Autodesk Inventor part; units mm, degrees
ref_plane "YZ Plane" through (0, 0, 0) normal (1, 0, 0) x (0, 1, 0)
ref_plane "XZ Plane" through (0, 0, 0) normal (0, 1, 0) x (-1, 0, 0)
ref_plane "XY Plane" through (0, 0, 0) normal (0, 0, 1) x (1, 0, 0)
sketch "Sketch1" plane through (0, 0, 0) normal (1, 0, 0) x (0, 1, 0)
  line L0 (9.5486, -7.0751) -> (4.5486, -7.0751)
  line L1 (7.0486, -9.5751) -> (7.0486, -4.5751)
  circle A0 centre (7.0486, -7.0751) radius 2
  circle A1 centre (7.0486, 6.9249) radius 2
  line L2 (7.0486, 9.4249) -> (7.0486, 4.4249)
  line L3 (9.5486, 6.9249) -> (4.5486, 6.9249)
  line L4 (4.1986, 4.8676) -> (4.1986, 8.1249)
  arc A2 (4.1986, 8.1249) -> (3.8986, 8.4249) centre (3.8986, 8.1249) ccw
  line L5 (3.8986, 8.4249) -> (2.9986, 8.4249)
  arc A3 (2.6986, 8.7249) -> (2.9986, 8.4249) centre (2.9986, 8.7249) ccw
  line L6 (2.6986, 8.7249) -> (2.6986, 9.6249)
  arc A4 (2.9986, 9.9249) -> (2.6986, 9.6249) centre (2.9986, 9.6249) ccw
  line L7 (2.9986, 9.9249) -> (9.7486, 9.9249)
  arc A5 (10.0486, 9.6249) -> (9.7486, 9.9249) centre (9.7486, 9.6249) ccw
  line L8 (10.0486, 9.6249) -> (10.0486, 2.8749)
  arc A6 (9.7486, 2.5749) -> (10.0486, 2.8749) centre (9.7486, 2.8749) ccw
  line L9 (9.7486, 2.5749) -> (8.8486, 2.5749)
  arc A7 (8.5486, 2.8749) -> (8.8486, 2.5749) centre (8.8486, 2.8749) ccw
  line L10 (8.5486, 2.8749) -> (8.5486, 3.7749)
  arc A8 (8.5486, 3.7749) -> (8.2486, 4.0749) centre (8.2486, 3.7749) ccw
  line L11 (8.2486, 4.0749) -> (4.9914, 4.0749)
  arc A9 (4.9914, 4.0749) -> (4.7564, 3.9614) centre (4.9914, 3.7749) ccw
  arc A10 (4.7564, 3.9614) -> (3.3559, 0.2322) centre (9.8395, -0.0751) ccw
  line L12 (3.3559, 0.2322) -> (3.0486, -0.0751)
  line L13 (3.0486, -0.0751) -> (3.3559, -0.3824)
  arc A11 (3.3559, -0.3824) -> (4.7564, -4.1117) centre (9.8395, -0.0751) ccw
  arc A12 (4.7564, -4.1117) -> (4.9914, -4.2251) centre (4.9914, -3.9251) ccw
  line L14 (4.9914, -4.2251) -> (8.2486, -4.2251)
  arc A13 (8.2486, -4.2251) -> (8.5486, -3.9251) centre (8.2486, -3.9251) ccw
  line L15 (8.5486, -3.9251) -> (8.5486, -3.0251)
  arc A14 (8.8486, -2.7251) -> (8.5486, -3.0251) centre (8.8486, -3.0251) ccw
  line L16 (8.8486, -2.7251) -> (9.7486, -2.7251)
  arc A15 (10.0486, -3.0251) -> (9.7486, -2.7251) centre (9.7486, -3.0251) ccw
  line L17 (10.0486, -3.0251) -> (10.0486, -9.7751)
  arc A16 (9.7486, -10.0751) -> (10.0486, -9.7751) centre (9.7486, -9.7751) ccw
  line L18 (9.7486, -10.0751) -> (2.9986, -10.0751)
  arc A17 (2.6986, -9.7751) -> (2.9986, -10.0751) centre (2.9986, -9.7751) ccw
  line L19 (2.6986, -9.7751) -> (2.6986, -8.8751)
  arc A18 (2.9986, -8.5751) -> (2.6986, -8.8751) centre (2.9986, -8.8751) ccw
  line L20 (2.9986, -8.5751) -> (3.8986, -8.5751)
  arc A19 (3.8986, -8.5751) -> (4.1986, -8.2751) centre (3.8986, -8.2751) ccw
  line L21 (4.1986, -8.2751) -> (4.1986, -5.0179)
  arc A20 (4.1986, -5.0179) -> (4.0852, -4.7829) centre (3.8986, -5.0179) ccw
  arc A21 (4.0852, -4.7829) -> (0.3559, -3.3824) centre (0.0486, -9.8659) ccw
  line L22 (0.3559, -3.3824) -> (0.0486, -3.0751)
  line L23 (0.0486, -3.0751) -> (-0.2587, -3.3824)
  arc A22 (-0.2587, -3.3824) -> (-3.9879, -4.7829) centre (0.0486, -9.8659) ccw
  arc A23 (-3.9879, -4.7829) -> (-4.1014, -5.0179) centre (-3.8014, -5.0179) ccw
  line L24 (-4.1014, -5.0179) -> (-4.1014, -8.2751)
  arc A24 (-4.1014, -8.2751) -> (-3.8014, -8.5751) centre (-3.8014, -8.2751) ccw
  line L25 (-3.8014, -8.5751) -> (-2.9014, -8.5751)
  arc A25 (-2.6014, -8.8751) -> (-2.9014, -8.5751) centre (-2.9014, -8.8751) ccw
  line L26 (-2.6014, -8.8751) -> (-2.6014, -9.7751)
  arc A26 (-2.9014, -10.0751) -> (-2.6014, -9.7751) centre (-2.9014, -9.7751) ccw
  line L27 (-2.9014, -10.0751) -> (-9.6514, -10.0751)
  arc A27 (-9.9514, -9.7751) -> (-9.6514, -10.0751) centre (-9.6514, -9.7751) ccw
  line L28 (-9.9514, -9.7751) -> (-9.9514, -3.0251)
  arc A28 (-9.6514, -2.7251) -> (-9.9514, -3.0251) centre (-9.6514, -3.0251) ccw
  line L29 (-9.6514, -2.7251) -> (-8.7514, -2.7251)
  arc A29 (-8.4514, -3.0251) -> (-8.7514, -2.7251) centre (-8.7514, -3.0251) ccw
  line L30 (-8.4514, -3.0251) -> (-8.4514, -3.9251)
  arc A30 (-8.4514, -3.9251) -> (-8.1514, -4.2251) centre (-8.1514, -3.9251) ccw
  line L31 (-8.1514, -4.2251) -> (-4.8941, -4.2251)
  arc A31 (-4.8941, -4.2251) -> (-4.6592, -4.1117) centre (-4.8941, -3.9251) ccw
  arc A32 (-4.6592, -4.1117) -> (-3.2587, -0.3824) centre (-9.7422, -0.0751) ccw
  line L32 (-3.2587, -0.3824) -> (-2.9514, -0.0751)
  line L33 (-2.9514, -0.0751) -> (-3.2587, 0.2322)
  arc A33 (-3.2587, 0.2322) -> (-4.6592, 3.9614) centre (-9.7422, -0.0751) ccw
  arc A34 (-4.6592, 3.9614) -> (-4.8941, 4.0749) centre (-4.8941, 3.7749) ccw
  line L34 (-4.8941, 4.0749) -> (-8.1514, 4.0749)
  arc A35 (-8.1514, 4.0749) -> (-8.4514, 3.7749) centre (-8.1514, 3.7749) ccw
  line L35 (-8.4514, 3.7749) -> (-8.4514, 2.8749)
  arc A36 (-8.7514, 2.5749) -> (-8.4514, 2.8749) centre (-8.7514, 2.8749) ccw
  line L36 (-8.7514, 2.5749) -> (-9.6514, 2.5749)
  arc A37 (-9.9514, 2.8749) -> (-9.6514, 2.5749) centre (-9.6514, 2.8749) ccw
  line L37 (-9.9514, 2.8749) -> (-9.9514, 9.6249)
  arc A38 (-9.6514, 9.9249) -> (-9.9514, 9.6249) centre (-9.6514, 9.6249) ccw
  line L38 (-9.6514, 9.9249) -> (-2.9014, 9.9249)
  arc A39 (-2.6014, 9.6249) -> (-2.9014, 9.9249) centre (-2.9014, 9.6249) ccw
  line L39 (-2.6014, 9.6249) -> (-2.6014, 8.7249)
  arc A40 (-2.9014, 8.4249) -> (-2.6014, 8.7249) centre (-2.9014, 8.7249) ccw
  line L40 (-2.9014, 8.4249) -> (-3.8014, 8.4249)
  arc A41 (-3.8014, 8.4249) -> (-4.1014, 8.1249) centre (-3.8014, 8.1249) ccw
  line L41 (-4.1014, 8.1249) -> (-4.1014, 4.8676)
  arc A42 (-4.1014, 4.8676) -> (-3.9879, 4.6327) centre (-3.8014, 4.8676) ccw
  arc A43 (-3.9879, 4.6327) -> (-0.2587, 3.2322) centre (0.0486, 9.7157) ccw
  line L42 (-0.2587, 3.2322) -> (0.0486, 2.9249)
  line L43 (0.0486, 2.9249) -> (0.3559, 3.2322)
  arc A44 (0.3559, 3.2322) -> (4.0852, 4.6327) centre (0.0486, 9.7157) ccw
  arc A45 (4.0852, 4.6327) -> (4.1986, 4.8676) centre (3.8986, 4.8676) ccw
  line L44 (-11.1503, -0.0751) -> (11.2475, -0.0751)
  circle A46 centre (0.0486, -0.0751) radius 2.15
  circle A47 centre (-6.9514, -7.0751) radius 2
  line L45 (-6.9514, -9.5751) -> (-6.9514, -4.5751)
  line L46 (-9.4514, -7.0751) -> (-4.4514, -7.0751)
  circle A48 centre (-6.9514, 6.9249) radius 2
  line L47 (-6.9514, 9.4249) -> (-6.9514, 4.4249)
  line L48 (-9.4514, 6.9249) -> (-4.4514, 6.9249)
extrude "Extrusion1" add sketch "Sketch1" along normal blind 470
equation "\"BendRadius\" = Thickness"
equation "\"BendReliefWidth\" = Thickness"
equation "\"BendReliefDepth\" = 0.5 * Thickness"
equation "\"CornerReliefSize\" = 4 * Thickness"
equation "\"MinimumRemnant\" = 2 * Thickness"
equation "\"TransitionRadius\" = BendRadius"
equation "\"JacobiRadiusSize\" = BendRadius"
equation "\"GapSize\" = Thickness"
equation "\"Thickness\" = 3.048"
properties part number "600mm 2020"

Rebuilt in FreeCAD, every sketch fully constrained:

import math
import FreeCAD as App
import Part
import Sketcher

doc = App.newDocument("Part")
body = doc.addObject("PartDesign::Body", "Body")

# Sketch on YZ plane
sketch1 = doc.addObject("Sketcher::SketchObject", "Sketch")
body.addObject(sketch1)
sketch1.AttachmentSupport = (doc.YZ_Plane, [""])
sketch1.MapMode = "FlatFace"
sketch1.addGeometry(Part.LineSegment(App.Vector(4.2, 8.12, 0), App.Vector(4.2, 4.87, 0)), False)
sketch1.addGeometry(Part.ArcOfCircle(Part.Circle(App.Vector(3.9, 4.87, 0), App.Vector(0, 0, 1), 0.3), math.radians(-52), math.radians(0)), False)
sketch1.addGeometry(Part.ArcOfCircle(Part.Circle(App.Vector(0.05, 9.72, 0), App.Vector(0, 0, 1), 6.49), math.radians(-87), math.radians(-52)), False)
sketch1.addGeometry(Part.LineSegment(App.Vector(0.36, 3.23, 0), App.Vector(0.05, 2.92, 0)), False)
sketch1.addGeometry(Part.LineSegment(App.Vector(0.05, 2.92, 0), App.Vector(-0.26, 3.23, 0)), False)
sketch1.addGeometry(Part.ArcOfCircle(Part.Circle(App.Vector(0.05, 9.72, 0), App.Vector(0, 0, 1), 6.49), math.radians(-128), math.radians(-93)), False)
sketch1.addGeometry(Part.ArcOfCircle(Part.Circle(App.Vector(-3.8, 4.87, 0), App.Vector(0, 0, 1), 0.3), math.radians(180), math.radians(232)), False)
sketch1.addGeometry(Part.LineSegment(App.Vector(-4.1, 4.87, 0), App.Vector(-4.1, 8.12, 0)), False)
sketch1.addGeometry(Part.ArcOfCircle(Part.Circle(App.Vector(-3.8, 8.12, 0), App.Vector(0, 0, 1), 0.3), math.radians(90), math.radians(180)), False)
sketch1.addGeometry(Part.LineSegment(App.Vector(-3.8, 8.42, 0), App.Vector(-2.9, 8.42, 0)), False)
sketch1.addGeometry(Part.ArcOfCircle(Part.Circle(App.Vector(-2.9, 8.72, 0), App.Vector(0, 0, 1), 0.3), math.radians(-90), math.radians(0)), False)
sketch1.addGeometry(Part.LineSegment(App.Vector(-2.6, 8.72, 0), App.Vector(-2.6, 9.62, 0)), False)
sketch1.addGeometry(Part.ArcOfCircle(Part.Circle(App.Vector(-2.9, 9.62, 0), App.Vector(0, 0, 1), 0.3), math.radians(0), math.radians(90)), False)
sketch1.addGeometry(Part.LineSegment(App.Vector(-2.9, 9.92, 0), App.Vector(-9.65, 9.92, 0)), False)
sketch1.addGeometry(Part.ArcOfCircle(Part.Circle(App.Vector(-9.65, 9.62, 0), App.Vector(0, 0, 1), 0.3), math.radians(90), math.radians(180)), False)
sketch1.addGeometry(Part.LineSegment(App.Vector(-9.95, 9.62, 0), App.Vector(-9.95, 2.87, 0)), False)
sketch1.addGeometry(Part.ArcOfCircle(Part.Circle(App.Vector(-9.65, 2.87, 0), App.Vector(0, 0, 1), 0.3), math.radians(180), math.radians(270)), False)
sketch1.addGeometry(Part.LineSegment(App.Vector(-9.65, 2.57, 0), App.Vector(-8.75, 2.57, 0)), False)
sketch1.addGeometry(Part.ArcOfCircle(Part.Circle(App.Vector(-8.75, 2.87, 0), App.Vector(0, 0, 1), 0.3), math.radians(-90), math.radians(0)), False)
sketch1.addGeometry(Part.LineSegment(App.Vector(-8.45, 2.87, 0), App.Vector(-8.45, 3.77, 0)), False)
sketch1.addGeometry(Part.ArcOfCircle(Part.Circle(App.Vector(-8.15, 3.77, 0), App.Vector(0, 0, 1), 0.3), math.radians(90), math.radians(180)), False)
sketch1.addGeometry(Part.LineSegment(App.Vector(-8.15, 4.07, 0), App.Vector(-4.89, 4.07, 0)), False)
sketch1.addGeometry(Part.ArcOfCircle(Part.Circle(App.Vector(-4.89, 3.77, 0), App.Vector(0, 0, 1), 0.3), math.radians(38), math.radians(90)), False)
sketch1.addGeometry(Part.ArcOfCircle(Part.Circle(App.Vector(-9.74, -0.08, 0), App.Vector(0, 0, 1), 6.49), math.radians(3), math.radians(38)), False)
sketch1.addGeometry(Part.LineSegment(App.Vector(-3.26, 0.23, 0), App.Vector(-2.95, -0.08, 0)), False)
sketch1.addGeometry(Part.LineSegment(App.Vector(-2.95, -0.08, 0), App.Vector(-3.26, -0.38, 0)), False)
sketch1.addGeometry(Part.ArcOfCircle(Part.Circle(App.Vector(-9.74, -0.08, 0), App.Vector(0, 0, 1), 6.49), math.radians(-38), math.radians(-3)), False)
sketch1.addGeometry(Part.ArcOfCircle(Part.Circle(App.Vector(-4.89, -3.93, 0), App.Vector(0, 0, 1), 0.3), math.radians(-90), math.radians(-38)), False)
sketch1.addGeometry(Part.LineSegment(App.Vector(-4.89, -4.23, 0), App.Vector(-8.15, -4.23, 0)), False)
sketch1.addGeometry(Part.ArcOfCircle(Part.Circle(App.Vector(-8.15, -3.93, 0), App.Vector(0, 0, 1), 0.3), math.radians(180), math.radians(270)), False)
sketch1.addGeometry(Part.LineSegment(App.Vector(-8.45, -3.93, 0), App.Vector(-8.45, -3.03, 0)), False)
sketch1.addGeometry(Part.ArcOfCircle(Part.Circle(App.Vector(-8.75, -3.03, 0), App.Vector(0, 0, 1), 0.3), math.radians(0), math.radians(90)), False)
sketch1.addGeometry(Part.LineSegment(App.Vector(-8.75, -2.73, 0), App.Vector(-9.65, -2.73, 0)), False)
sketch1.addGeometry(Part.ArcOfCircle(Part.Circle(App.Vector(-9.65, -3.03, 0), App.Vector(0, 0, 1), 0.3), math.radians(90), math.radians(180)), False)
sketch1.addGeometry(Part.LineSegment(App.Vector(-9.95, -3.03, 0), App.Vector(-9.95, -9.78, 0)), False)
sketch1.addGeometry(Part.ArcOfCircle(Part.Circle(App.Vector(-9.65, -9.78, 0), App.Vector(0, 0, 1), 0.3), math.radians(180), math.radians(270)), False)
sketch1.addGeometry(Part.LineSegment(App.Vector(-9.65, -10.08, 0), App.Vector(-2.9, -10.08, 0)), False)
sketch1.addGeometry(Part.ArcOfCircle(Part.Circle(App.Vector(-2.9, -9.78, 0), App.Vector(0, 0, 1), 0.3), math.radians(-90), math.radians(0)), False)
sketch1.addGeometry(Part.LineSegment(App.Vector(-2.6, -9.78, 0), App.Vector(-2.6, -8.88, 0)), False)
sketch1.addGeometry(Part.ArcOfCircle(Part.Circle(App.Vector(-2.9, -8.88, 0), App.Vector(0, 0, 1), 0.3), math.radians(0), math.radians(90)), False)
sketch1.addGeometry(Part.LineSegment(App.Vector(-2.9, -8.58, 0), App.Vector(-3.8, -8.58, 0)), False)
sketch1.addGeometry(Part.ArcOfCircle(Part.Circle(App.Vector(-3.8, -8.28, 0), App.Vector(0, 0, 1), 0.3), math.radians(180), math.radians(270)), False)
sketch1.addGeometry(Part.LineSegment(App.Vector(-4.1, -8.28, 0), App.Vector(-4.1, -5.02, 0)), False)
sketch1.addGeometry(Part.ArcOfCircle(Part.Circle(App.Vector(-3.8, -5.02, 0), App.Vector(0, 0, 1), 0.3), math.radians(128), math.radians(180)), False)
sketch1.addGeometry(Part.ArcOfCircle(Part.Circle(App.Vector(0.05, -9.87, 0), App.Vector(0, 0, 1), 6.49), math.radians(93), math.radians(128)), False)
sketch1.addGeometry(Part.LineSegment(App.Vector(-0.26, -3.38, 0), App.Vector(0.05, -3.08, 0)), False)
sketch1.addGeometry(Part.LineSegment(App.Vector(0.05, -3.08, 0), App.Vector(0.36, -3.38, 0)), False)
sketch1.addGeometry(Part.ArcOfCircle(Part.Circle(App.Vector(0.05, -9.87, 0), App.Vector(0, 0, 1), 6.49), math.radians(52), math.radians(87)), False)
sketch1.addGeometry(Part.ArcOfCircle(Part.Circle(App.Vector(3.9, -5.02, 0), App.Vector(0, 0, 1), 0.3), math.radians(0), math.radians(52)), False)
sketch1.addGeometry(Part.LineSegment(App.Vector(4.2, -5.02, 0), App.Vector(4.2, -8.28, 0)), False)
sketch1.addGeometry(Part.ArcOfCircle(Part.Circle(App.Vector(3.9, -8.28, 0), App.Vector(0, 0, 1), 0.3), math.radians(-90), math.radians(0)), False)
sketch1.addGeometry(Part.LineSegment(App.Vector(3.9, -8.58, 0), App.Vector(3, -8.58, 0)), False)
sketch1.addGeometry(Part.ArcOfCircle(Part.Circle(App.Vector(3, -8.88, 0), App.Vector(0, 0, 1), 0.3), math.radians(90), math.radians(180)), False)
sketch1.addGeometry(Part.LineSegment(App.Vector(2.7, -8.88, 0), App.Vector(2.7, -9.78, 0)), False)
sketch1.addGeometry(Part.ArcOfCircle(Part.Circle(App.Vector(3, -9.78, 0), App.Vector(0, 0, 1), 0.3), math.radians(180), math.radians(270)), False)
sketch1.addGeometry(Part.LineSegment(App.Vector(3, -10.08, 0), App.Vector(9.75, -10.08, 0)), False)
sketch1.addGeometry(Part.ArcOfCircle(Part.Circle(App.Vector(9.75, -9.78, 0), App.Vector(0, 0, 1), 0.3), math.radians(-90), math.radians(0)), False)
sketch1.addGeometry(Part.LineSegment(App.Vector(10.05, -9.78, 0), App.Vector(10.05, -3.03, 0)), False)
sketch1.addGeometry(Part.ArcOfCircle(Part.Circle(App.Vector(9.75, -3.03, 0), App.Vector(0, 0, 1), 0.3), math.radians(0), math.radians(90)), False)
sketch1.addGeometry(Part.LineSegment(App.Vector(9.75, -2.73, 0), App.Vector(8.85, -2.73, 0)), False)
sketch1.addGeometry(Part.ArcOfCircle(Part.Circle(App.Vector(8.85, -3.03, 0), App.Vector(0, 0, 1), 0.3), math.radians(90), math.radians(180)), False)
sketch1.addGeometry(Part.LineSegment(App.Vector(8.55, -3.03, 0), App.Vector(8.55, -3.93, 0)), False)
sketch1.addGeometry(Part.ArcOfCircle(Part.Circle(App.Vector(8.25, -3.93, 0), App.Vector(0, 0, 1), 0.3), math.radians(-90), math.radians(0)), False)
sketch1.addGeometry(Part.LineSegment(App.Vector(8.25, -4.23, 0), App.Vector(4.99, -4.23, 0)), False)
sketch1.addGeometry(Part.ArcOfCircle(Part.Circle(App.Vector(4.99, -3.93, 0), App.Vector(0, 0, 1), 0.3), math.radians(-142), math.radians(-90)), False)
sketch1.addGeometry(Part.ArcOfCircle(Part.Circle(App.Vector(9.84, -0.08, 0), App.Vector(0, 0, 1), 6.49), math.radians(-177), math.radians(-142)), False)
sketch1.addGeometry(Part.LineSegment(App.Vector(3.36, -0.38, 0), App.Vector(3.05, -0.08, 0)), False)
sketch1.addGeometry(Part.LineSegment(App.Vector(3.05, -0.08, 0), App.Vector(3.36, 0.23, 0)), False)
sketch1.addGeometry(Part.ArcOfCircle(Part.Circle(App.Vector(9.84, -0.08, 0), App.Vector(0, 0, 1), 6.49), math.radians(142), math.radians(177)), False)
sketch1.addGeometry(Part.ArcOfCircle(Part.Circle(App.Vector(4.99, 3.77, 0), App.Vector(0, 0, 1), 0.3), math.radians(90), math.radians(142)), False)
sketch1.addGeometry(Part.LineSegment(App.Vector(4.99, 4.07, 0), App.Vector(8.25, 4.07, 0)), False)
sketch1.addGeometry(Part.ArcOfCircle(Part.Circle(App.Vector(8.25, 3.77, 0), App.Vector(0, 0, 1), 0.3), math.radians(0), math.radians(90)), False)
sketch1.addGeometry(Part.LineSegment(App.Vector(8.55, 3.77, 0), App.Vector(8.55, 2.87, 0)), False)
sketch1.addGeometry(Part.ArcOfCircle(Part.Circle(App.Vector(8.85, 2.87, 0), App.Vector(0, 0, 1), 0.3), math.radians(180), math.radians(270)), False)
sketch1.addGeometry(Part.LineSegment(App.Vector(8.85, 2.57, 0), App.Vector(9.75, 2.57, 0)), False)
sketch1.addGeometry(Part.ArcOfCircle(Part.Circle(App.Vector(9.75, 2.87, 0), App.Vector(0, 0, 1), 0.3), math.radians(-90), math.radians(0)), False)
sketch1.addGeometry(Part.LineSegment(App.Vector(10.05, 2.87, 0), App.Vector(10.05, 9.62, 0)), False)
sketch1.addGeometry(Part.ArcOfCircle(Part.Circle(App.Vector(9.75, 9.62, 0), App.Vector(0, 0, 1), 0.3), math.radians(0), math.radians(90)), False)
sketch1.addGeometry(Part.LineSegment(App.Vector(9.75, 9.92, 0), App.Vector(3, 9.92, 0)), False)
sketch1.addGeometry(Part.ArcOfCircle(Part.Circle(App.Vector(3, 9.62, 0), App.Vector(0, 0, 1), 0.3), math.radians(90), math.radians(180)), False)
sketch1.addGeometry(Part.LineSegment(App.Vector(2.7, 9.62, 0), App.Vector(2.7, 8.72, 0)), False)
sketch1.addGeometry(Part.ArcOfCircle(Part.Circle(App.Vector(3, 8.72, 0), App.Vector(0, 0, 1), 0.3), math.radians(180), math.radians(270)), False)
sketch1.addGeometry(Part.LineSegment(App.Vector(3, 8.42, 0), App.Vector(3.9, 8.42, 0)), False)
sketch1.addGeometry(Part.ArcOfCircle(Part.Circle(App.Vector(3.9, 8.12, 0), App.Vector(0, 0, 1), 0.3), math.radians(0), math.radians(90)), False)
sketch1.addGeometry(Part.Circle(App.Vector(-6.95, 6.92, 0), App.Vector(0, 0, 1), 2), False)
sketch1.addGeometry(Part.Circle(App.Vector(7.05, 6.92, 0), App.Vector(0, 0, 1), 2), False)
sketch1.addGeometry(Part.Circle(App.Vector(7.05, -7.08, 0), App.Vector(0, 0, 1), 2), False)
sketch1.addGeometry(Part.Circle(App.Vector(-6.95, -7.08, 0), App.Vector(0, 0, 1), 2), False)
sketch1.addConstraint(Sketcher.Constraint("Tangent", 0, 2, 1, 2))
sketch1.addConstraint(Sketcher.Constraint("Tangent", 1, 1, 2, 2))
sketch1.addConstraint(Sketcher.Constraint("Coincident", 2, 1, 3, 1))
sketch1.addConstraint(Sketcher.Constraint("Coincident", 3, 2, 4, 1))
sketch1.addConstraint(Sketcher.Constraint("Coincident", 4, 2, 5, 2))
sketch1.addConstraint(Sketcher.Constraint("Tangent", 5, 1, 6, 2))
sketch1.addConstraint(Sketcher.Constraint("Tangent", 6, 1, 7, 1))
sketch1.addConstraint(Sketcher.Constraint("Tangent", 7, 2, 8, 2))
sketch1.addConstraint(Sketcher.Constraint("Tangent", 8, 1, 9, 1))
sketch1.addConstraint(Sketcher.Constraint("Tangent", 9, 2, 10, 1))
sketch1.addConstraint(Sketcher.Constraint("Tangent", 10, 2, 11, 1))
sketch1.addConstraint(Sketcher.Constraint("Tangent", 11, 2, 12, 1))
sketch1.addConstraint(Sketcher.Constraint("Tangent", 12, 2, 13, 1))
sketch1.addConstraint(Sketcher.Constraint("Tangent", 13, 2, 14, 1))
sketch1.addConstraint(Sketcher.Constraint("Tangent", 14, 2, 15, 1))
sketch1.addConstraint(Sketcher.Constraint("Tangent", 15, 2, 16, 1))
sketch1.addConstraint(Sketcher.Constraint("Tangent", 16, 2, 17, 1))
sketch1.addConstraint(Sketcher.Constraint("Tangent", 17, 2, 18, 1))
sketch1.addConstraint(Sketcher.Constraint("Tangent", 18, 2, 19, 1))
sketch1.addConstraint(Sketcher.Constraint("Tangent", 19, 2, 20, 2))
sketch1.addConstraint(Sketcher.Constraint("Tangent", 20, 1, 21, 1))
sketch1.addConstraint(Sketcher.Constraint("Tangent", 21, 2, 22, 2))
sketch1.addConstraint(Sketcher.Constraint("Tangent", 22, 1, 23, 2))
sketch1.addConstraint(Sketcher.Constraint("Coincident", 23, 1, 24, 1))
sketch1.addConstraint(Sketcher.Constraint("Coincident", 24, 2, 25, 1))
sketch1.addConstraint(Sketcher.Constraint("Coincident", 25, 2, 26, 2))
sketch1.addConstraint(Sketcher.Constraint("Tangent", 26, 1, 27, 2))
sketch1.addConstraint(Sketcher.Constraint("Tangent", 27, 1, 28, 1))
sketch1.addConstraint(Sketcher.Constraint("Tangent", 28, 2, 29, 2))
sketch1.addConstraint(Sketcher.Constraint("Tangent", 29, 1, 30, 1))
sketch1.addConstraint(Sketcher.Constraint("Tangent", 30, 2, 31, 1))
sketch1.addConstraint(Sketcher.Constraint("Tangent", 31, 2, 32, 1))
sketch1.addConstraint(Sketcher.Constraint("Tangent", 32, 2, 33, 1))
sketch1.addConstraint(Sketcher.Constraint("Tangent", 33, 2, 34, 1))
sketch1.addConstraint(Sketcher.Constraint("Tangent", 34, 2, 35, 1))
sketch1.addConstraint(Sketcher.Constraint("Tangent", 35, 2, 36, 1))
sketch1.addConstraint(Sketcher.Constraint("Tangent", 36, 2, 37, 1))
sketch1.addConstraint(Sketcher.Constraint("Tangent", 37, 2, 38, 1))
sketch1.addConstraint(Sketcher.Constraint("Tangent", 38, 2, 39, 1))
sketch1.addConstraint(Sketcher.Constraint("Tangent", 39, 2, 40, 1))
sketch1.addConstraint(Sketcher.Constraint("Tangent", 40, 2, 41, 2))
sketch1.addConstraint(Sketcher.Constraint("Tangent", 41, 1, 42, 1))
sketch1.addConstraint(Sketcher.Constraint("Tangent", 42, 2, 43, 2))
sketch1.addConstraint(Sketcher.Constraint("Tangent", 43, 1, 44, 2))
sketch1.addConstraint(Sketcher.Constraint("Coincident", 44, 1, 45, 1))
sketch1.addConstraint(Sketcher.Constraint("Coincident", 45, 2, 46, 1))
sketch1.addConstraint(Sketcher.Constraint("Coincident", 46, 2, 47, 2))
sketch1.addConstraint(Sketcher.Constraint("Tangent", 47, 1, 48, 2))
sketch1.addConstraint(Sketcher.Constraint("Tangent", 48, 1, 49, 1))
sketch1.addConstraint(Sketcher.Constraint("Tangent", 49, 2, 50, 2))
sketch1.addConstraint(Sketcher.Constraint("Tangent", 50, 1, 51, 1))
sketch1.addConstraint(Sketcher.Constraint("Tangent", 51, 2, 52, 1))
sketch1.addConstraint(Sketcher.Constraint("Tangent", 52, 2, 53, 1))
sketch1.addConstraint(Sketcher.Constraint("Tangent", 53, 2, 54, 1))
sketch1.addConstraint(Sketcher.Constraint("Tangent", 54, 2, 55, 1))
sketch1.addConstraint(Sketcher.Constraint("Tangent", 55, 2, 56, 1))
sketch1.addConstraint(Sketcher.Constraint("Tangent", 56, 2, 57, 1))
sketch1.addConstraint(Sketcher.Constraint("Tangent", 57, 2, 58, 1))
sketch1.addConstraint(Sketcher.Constraint("Tangent", 58, 2, 59, 1))
sketch1.addConstraint(Sketcher.Constraint("Tangent", 59, 2, 60, 1))
sketch1.addConstraint(Sketcher.Constraint("Tangent", 60, 2, 61, 1))
sketch1.addConstraint(Sketcher.Constraint("Tangent", 61, 2, 62, 2))
sketch1.addConstraint(Sketcher.Constraint("Tangent", 62, 1, 63, 1))
sketch1.addConstraint(Sketcher.Constraint("Tangent", 63, 2, 64, 2))
sketch1.addConstraint(Sketcher.Constraint("Tangent", 64, 1, 65, 2))
sketch1.addConstraint(Sketcher.Constraint("Coincident", 65, 1, 66, 1))
sketch1.addConstraint(Sketcher.Constraint("Coincident", 66, 2, 67, 1))
sketch1.addConstraint(Sketcher.Constraint("Coincident", 67, 2, 68, 2))
sketch1.addConstraint(Sketcher.Constraint("Tangent", 68, 1, 69, 2))
sketch1.addConstraint(Sketcher.Constraint("Tangent", 69, 1, 70, 1))
sketch1.addConstraint(Sketcher.Constraint("Tangent", 70, 2, 71, 2))
sketch1.addConstraint(Sketcher.Constraint("Tangent", 71, 1, 72, 1))
sketch1.addConstraint(Sketcher.Constraint("Tangent", 72, 2, 73, 1))
sketch1.addConstraint(Sketcher.Constraint("Tangent", 73, 2, 74, 1))
sketch1.addConstraint(Sketcher.Constraint("Tangent", 74, 2, 75, 1))
sketch1.addConstraint(Sketcher.Constraint("Tangent", 75, 2, 76, 1))
sketch1.addConstraint(Sketcher.Constraint("Tangent", 76, 2, 77, 1))
sketch1.addConstraint(Sketcher.Constraint("Tangent", 77, 2, 78, 1))
sketch1.addConstraint(Sketcher.Constraint("Tangent", 78, 2, 79, 1))
sketch1.addConstraint(Sketcher.Constraint("Tangent", 79, 2, 80, 1))
sketch1.addConstraint(Sketcher.Constraint("Tangent", 80, 2, 81, 1))
sketch1.addConstraint(Sketcher.Constraint("Tangent", 81, 2, 82, 1))
sketch1.addConstraint(Sketcher.Constraint("Tangent", 82, 2, 83, 2))
sketch1.addConstraint(Sketcher.Constraint("Tangent", 83, 1, 0, 1))
sketch1.addConstraint(Sketcher.Constraint("Vertical", 0))
sketch1.addConstraint(Sketcher.Constraint("Vertical", 7))
sketch1.addConstraint(Sketcher.Constraint("Horizontal", 9))
sketch1.addConstraint(Sketcher.Constraint("Vertical", 11))
sketch1.addConstraint(Sketcher.Constraint("Horizontal", 13))
sketch1.addConstraint(Sketcher.Constraint("Vertical", 15))
sketch1.addConstraint(Sketcher.Constraint("Horizontal", 17))
sketch1.addConstraint(Sketcher.Constraint("Vertical", 19))
sketch1.addConstraint(Sketcher.Constraint("Horizontal", 21))
sketch1.addConstraint(Sketcher.Constraint("Horizontal", 28))
sketch1.addConstraint(Sketcher.Constraint("Vertical", 30))
sketch1.addConstraint(Sketcher.Constraint("Horizontal", 32))
sketch1.addConstraint(Sketcher.Constraint("Vertical", 34))
sketch1.addConstraint(Sketcher.Constraint("Horizontal", 36))
sketch1.addConstraint(Sketcher.Constraint("Vertical", 38))
sketch1.addConstraint(Sketcher.Constraint("Horizontal", 40))
sketch1.addConstraint(Sketcher.Constraint("Vertical", 42))
sketch1.addConstraint(Sketcher.Constraint("Vertical", 49))
sketch1.addConstraint(Sketcher.Constraint("Horizontal", 51))
sketch1.addConstraint(Sketcher.Constraint("Vertical", 53))
sketch1.addConstraint(Sketcher.Constraint("Horizontal", 55))
sketch1.addConstraint(Sketcher.Constraint("Vertical", 57))
sketch1.addConstraint(Sketcher.Constraint("Horizontal", 59))
sketch1.addConstraint(Sketcher.Constraint("Vertical", 61))
sketch1.addConstraint(Sketcher.Constraint("Horizontal", 63))
sketch1.addConstraint(Sketcher.Constraint("Horizontal", 70))
sketch1.addConstraint(Sketcher.Constraint("Vertical", 72))
sketch1.addConstraint(Sketcher.Constraint("Horizontal", 74))
sketch1.addConstraint(Sketcher.Constraint("Vertical", 76))
sketch1.addConstraint(Sketcher.Constraint("Horizontal", 78))
sketch1.addConstraint(Sketcher.Constraint("Vertical", 80))
sketch1.addConstraint(Sketcher.Constraint("Horizontal", 82))
sketch1.addConstraint(Sketcher.Constraint("Coincident", 5, 3, 2, 3))
sketch1.addConstraint(Sketcher.Constraint("Coincident", 26, 3, 23, 3))
sketch1.addConstraint(Sketcher.Constraint("Coincident", 47, 3, 44, 3))
sketch1.addConstraint(Sketcher.Constraint("Coincident", 68, 3, 65, 3))
sketch1.addConstraint(Sketcher.Constraint("Equal", 2, 5))
sketch1.addConstraint(Sketcher.Constraint("Equal", 1, 6))
sketch1.addConstraint(Sketcher.Constraint("Equal", 6, 8))
sketch1.addConstraint(Sketcher.Constraint("Equal", 8, 10))
sketch1.addConstraint(Sketcher.Constraint("Equal", 10, 12))
sketch1.addConstraint(Sketcher.Constraint("Equal", 12, 14))
sketch1.addConstraint(Sketcher.Constraint("Equal", 14, 16))
sketch1.addConstraint(Sketcher.Constraint("Equal", 16, 18))
sketch1.addConstraint(Sketcher.Constraint("Equal", 18, 20))
sketch1.addConstraint(Sketcher.Constraint("Equal", 20, 22))
sketch1.addConstraint(Sketcher.Constraint("Equal", 5, 23))
sketch1.addConstraint(Sketcher.Constraint("Equal", 23, 26))
sketch1.addConstraint(Sketcher.Constraint("Equal", 22, 27))
sketch1.addConstraint(Sketcher.Constraint("Equal", 27, 29))
sketch1.addConstraint(Sketcher.Constraint("Equal", 29, 31))
sketch1.addConstraint(Sketcher.Constraint("Equal", 31, 33))
sketch1.addConstraint(Sketcher.Constraint("Equal", 33, 35))
sketch1.addConstraint(Sketcher.Constraint("Equal", 35, 37))
sketch1.addConstraint(Sketcher.Constraint("Equal", 37, 39))
sketch1.addConstraint(Sketcher.Constraint("Equal", 39, 41))
sketch1.addConstraint(Sketcher.Constraint("Equal", 41, 43))
sketch1.addConstraint(Sketcher.Constraint("Equal", 26, 44))
sketch1.addConstraint(Sketcher.Constraint("Equal", 44, 47))
sketch1.addConstraint(Sketcher.Constraint("Equal", 43, 48))
sketch1.addConstraint(Sketcher.Constraint("Equal", 48, 50))
sketch1.addConstraint(Sketcher.Constraint("Equal", 50, 52))
sketch1.addConstraint(Sketcher.Constraint("Equal", 52, 54))
sketch1.addConstraint(Sketcher.Constraint("Equal", 54, 56))
sketch1.addConstraint(Sketcher.Constraint("Equal", 56, 58))
sketch1.addConstraint(Sketcher.Constraint("Equal", 58, 60))
sketch1.addConstraint(Sketcher.Constraint("Equal", 60, 62))
sketch1.addConstraint(Sketcher.Constraint("Equal", 62, 64))
sketch1.addConstraint(Sketcher.Constraint("Equal", 47, 65))
sketch1.addConstraint(Sketcher.Constraint("Equal", 65, 68))
sketch1.addConstraint(Sketcher.Constraint("Equal", 64, 69))
sketch1.addConstraint(Sketcher.Constraint("Equal", 69, 71))
sketch1.addConstraint(Sketcher.Constraint("Equal", 71, 73))
sketch1.addConstraint(Sketcher.Constraint("Equal", 73, 75))
sketch1.addConstraint(Sketcher.Constraint("Equal", 75, 77))
sketch1.addConstraint(Sketcher.Constraint("Equal", 77, 79))
sketch1.addConstraint(Sketcher.Constraint("Equal", 79, 81))
sketch1.addConstraint(Sketcher.Constraint("Equal", 81, 83))
sketch1.addConstraint(Sketcher.Constraint("Equal", 84, 85))
sketch1.addConstraint(Sketcher.Constraint("Equal", 85, 86))
sketch1.addConstraint(Sketcher.Constraint("Equal", 86, 87))
sketch1.addConstraint(Sketcher.Constraint("Perpendicular", 3, 4))
sketch1.addConstraint(Sketcher.Constraint("Parallel", 4, 24))
sketch1.addConstraint(Sketcher.Constraint("Perpendicular", 24, 25))
sketch1.addConstraint(Sketcher.Constraint("Parallel", 25, 45))
sketch1.addConstraint(Sketcher.Constraint("Perpendicular", 45, 46))
sketch1.addConstraint(Sketcher.Constraint("Parallel", 46, 66))
sketch1.addConstraint(Sketcher.Constraint("Perpendicular", 66, 67))
sketch1.addConstraint(Sketcher.Constraint("Horizontal", 1, 3, 6, 3))
sketch1.addConstraint(Sketcher.Constraint("Horizontal", 43, 3, 48, 3))
sketch1.addConstraint(Sketcher.Constraint("Horizontal", 41, 3, 50, 3))
sketch1.addConstraint(Sketcher.Constraint("Horizontal", 37, 3, 54, 3))
sketch1.addConstraint(Sketcher.Constraint("Horizontal", 33, 3, 58, 3))
sketch1.addConstraint(Sketcher.Constraint("Horizontal", 29, 3, 62, 3))
sketch1.addConstraint(Sketcher.Constraint("Horizontal", 26, 3, 65, 3))
sketch1.addConstraint(Sketcher.Constraint("Horizontal", 22, 3, 69, 3))
sketch1.addConstraint(Sketcher.Constraint("Horizontal", 18, 3, 73, 3))
sketch1.addConstraint(Sketcher.Constraint("Horizontal", 14, 3, 77, 3))
sketch1.addConstraint(Sketcher.Constraint("Horizontal", 10, 3, 81, 3))
sketch1.addConstraint(Sketcher.Constraint("Horizontal", 84, 3, 85, 3))
sketch1.addConstraint(Sketcher.Constraint("Horizontal", 86, 3, 87, 3))
sketch1.addConstraint(Sketcher.Constraint("Horizontal", 2, 1, 4, 2))
sketch1.addConstraint(Sketcher.Constraint("Horizontal", 68, 3, 24, 2))
sketch1.addConstraint(Sketcher.Constraint("Horizontal", 44, 1, 46, 2))
sketch1.addConstraint(Sketcher.Constraint("Horizontal", 25, 2, 65, 1))
sketch1.addConstraint(Sketcher.Constraint("Horizontal", 24, 2, 66, 2))
sketch1.addConstraint(Sketcher.Constraint("Horizontal", 23, 1, 67, 2))
sketch1.addConstraint(Sketcher.Constraint("Vertical", 22, 3, 27, 3))
sketch1.addConstraint(Sketcher.Constraint("Vertical", 20, 3, 29, 3))
sketch1.addConstraint(Sketcher.Constraint("Vertical", 16, 3, 33, 3))
sketch1.addConstraint(Sketcher.Constraint("Vertical", 12, 3, 37, 3))
sketch1.addConstraint(Sketcher.Constraint("Vertical", 8, 3, 41, 3))
sketch1.addConstraint(Sketcher.Constraint("Vertical", 5, 3, 44, 3))
sketch1.addConstraint(Sketcher.Constraint("Vertical", 62, 3, 71, 3))
sketch1.addConstraint(Sketcher.Constraint("Vertical", 58, 3, 75, 3))
sketch1.addConstraint(Sketcher.Constraint("Vertical", 54, 3, 79, 3))
sketch1.addConstraint(Sketcher.Constraint("Vertical", 85, 3, 86, 3))
sketch1.addConstraint(Sketcher.Constraint("Vertical", 84, 3, 87, 3))
sketch1.addConstraint(Sketcher.Constraint("Vertical", 4, 2, 44, 1))
sketch1.addConstraint(Sketcher.Constraint("Equal", 9, 17))
sketch1.addConstraint(Sketcher.Constraint("Equal", 40, 51))
sketch1.addConstraint(Sketcher.Constraint("Equal", 36, 55))
sketch1.addConstraint(Sketcher.Constraint("Equal", 51, 59))
sketch1.addConstraint(Sketcher.Constraint("Equal", 28, 63))
sketch1.addConstraint(Sketcher.Constraint("Equal", 70, 0))
sketch1.addConstraint(Sketcher.Constraint("Equal", 82, 11))
sketch1.addConstraint(Sketcher.Constraint("Equal", 78, 15))
sketch1.addConstraint(Sketcher.Constraint("Equal", 11, 19))
sketch1.addConstraint(Sketcher.Constraint("Equal", 19, 30))
sketch1.addConstraint(Sketcher.Constraint("Equal", 15, 34))
sketch1.addConstraint(Sketcher.Constraint("Equal", 30, 38))
sketch1.addConstraint(Sketcher.Constraint("Equal", 7, 42))
sketch1.addConstraint(Sketcher.Constraint("Equal", 4, 24))
sketch1.addConstraint(Sketcher.Constraint("Diameter", 84, 4.0))
sketch1.addConstraint(Sketcher.Constraint("Radius", 1, 0.3))
sketch1.addConstraint(Sketcher.Constraint("DistanceX", 9, 1, 9, 2, 0.9))
sketch1.addConstraint(Sketcher.Constraint("DistanceX", 13, 2, 13, 1, 6.75))
sketch1.addConstraint(Sketcher.Constraint("Radius", 2, 6.4908))
sketch1.addConstraint(Sketcher.Constraint("DistanceX", 21, 1, 21, 2, 3.2573))
sketch1.addConstraint(Sketcher.Constraint("DistanceY", -1, 1, 8, 3, 8.125))
sketch1.addConstraint(Sketcher.Constraint("DistanceX", 22, 3, -1, 1, 4.894))
sketch1.addConstraint(Sketcher.Constraint("DistanceY", 23, 3, -1, 1, 0.075))
sketch1.addConstraint(Sketcher.Constraint("DistanceY", 44, 3, -1, 1, 9.866))
sketch1.addConstraint(Sketcher.Constraint("DistanceY", -1, 1, 84, 3, 6.925))
sketch1.addConstraint(Sketcher.Constraint("DistanceY", 86, 3, -1, 1, 7.075))
sketch1.addConstraint(Sketcher.Constraint("DistanceX", -1, 1, 2, 1, 0.356))
sketch1.addConstraint(Sketcher.Constraint("DistanceX", 84, 3, -1, 1, 6.9514))
sketch1.addConstraint(Sketcher.Constraint("DistanceX", -1, 1, 85, 3, 7.0486))
pad1 = doc.addObject("PartDesign::Pad", "Pad")
body.addObject(pad1)
pad1.Profile = sketch1
pad1.Length = 470

doc.recompute()
